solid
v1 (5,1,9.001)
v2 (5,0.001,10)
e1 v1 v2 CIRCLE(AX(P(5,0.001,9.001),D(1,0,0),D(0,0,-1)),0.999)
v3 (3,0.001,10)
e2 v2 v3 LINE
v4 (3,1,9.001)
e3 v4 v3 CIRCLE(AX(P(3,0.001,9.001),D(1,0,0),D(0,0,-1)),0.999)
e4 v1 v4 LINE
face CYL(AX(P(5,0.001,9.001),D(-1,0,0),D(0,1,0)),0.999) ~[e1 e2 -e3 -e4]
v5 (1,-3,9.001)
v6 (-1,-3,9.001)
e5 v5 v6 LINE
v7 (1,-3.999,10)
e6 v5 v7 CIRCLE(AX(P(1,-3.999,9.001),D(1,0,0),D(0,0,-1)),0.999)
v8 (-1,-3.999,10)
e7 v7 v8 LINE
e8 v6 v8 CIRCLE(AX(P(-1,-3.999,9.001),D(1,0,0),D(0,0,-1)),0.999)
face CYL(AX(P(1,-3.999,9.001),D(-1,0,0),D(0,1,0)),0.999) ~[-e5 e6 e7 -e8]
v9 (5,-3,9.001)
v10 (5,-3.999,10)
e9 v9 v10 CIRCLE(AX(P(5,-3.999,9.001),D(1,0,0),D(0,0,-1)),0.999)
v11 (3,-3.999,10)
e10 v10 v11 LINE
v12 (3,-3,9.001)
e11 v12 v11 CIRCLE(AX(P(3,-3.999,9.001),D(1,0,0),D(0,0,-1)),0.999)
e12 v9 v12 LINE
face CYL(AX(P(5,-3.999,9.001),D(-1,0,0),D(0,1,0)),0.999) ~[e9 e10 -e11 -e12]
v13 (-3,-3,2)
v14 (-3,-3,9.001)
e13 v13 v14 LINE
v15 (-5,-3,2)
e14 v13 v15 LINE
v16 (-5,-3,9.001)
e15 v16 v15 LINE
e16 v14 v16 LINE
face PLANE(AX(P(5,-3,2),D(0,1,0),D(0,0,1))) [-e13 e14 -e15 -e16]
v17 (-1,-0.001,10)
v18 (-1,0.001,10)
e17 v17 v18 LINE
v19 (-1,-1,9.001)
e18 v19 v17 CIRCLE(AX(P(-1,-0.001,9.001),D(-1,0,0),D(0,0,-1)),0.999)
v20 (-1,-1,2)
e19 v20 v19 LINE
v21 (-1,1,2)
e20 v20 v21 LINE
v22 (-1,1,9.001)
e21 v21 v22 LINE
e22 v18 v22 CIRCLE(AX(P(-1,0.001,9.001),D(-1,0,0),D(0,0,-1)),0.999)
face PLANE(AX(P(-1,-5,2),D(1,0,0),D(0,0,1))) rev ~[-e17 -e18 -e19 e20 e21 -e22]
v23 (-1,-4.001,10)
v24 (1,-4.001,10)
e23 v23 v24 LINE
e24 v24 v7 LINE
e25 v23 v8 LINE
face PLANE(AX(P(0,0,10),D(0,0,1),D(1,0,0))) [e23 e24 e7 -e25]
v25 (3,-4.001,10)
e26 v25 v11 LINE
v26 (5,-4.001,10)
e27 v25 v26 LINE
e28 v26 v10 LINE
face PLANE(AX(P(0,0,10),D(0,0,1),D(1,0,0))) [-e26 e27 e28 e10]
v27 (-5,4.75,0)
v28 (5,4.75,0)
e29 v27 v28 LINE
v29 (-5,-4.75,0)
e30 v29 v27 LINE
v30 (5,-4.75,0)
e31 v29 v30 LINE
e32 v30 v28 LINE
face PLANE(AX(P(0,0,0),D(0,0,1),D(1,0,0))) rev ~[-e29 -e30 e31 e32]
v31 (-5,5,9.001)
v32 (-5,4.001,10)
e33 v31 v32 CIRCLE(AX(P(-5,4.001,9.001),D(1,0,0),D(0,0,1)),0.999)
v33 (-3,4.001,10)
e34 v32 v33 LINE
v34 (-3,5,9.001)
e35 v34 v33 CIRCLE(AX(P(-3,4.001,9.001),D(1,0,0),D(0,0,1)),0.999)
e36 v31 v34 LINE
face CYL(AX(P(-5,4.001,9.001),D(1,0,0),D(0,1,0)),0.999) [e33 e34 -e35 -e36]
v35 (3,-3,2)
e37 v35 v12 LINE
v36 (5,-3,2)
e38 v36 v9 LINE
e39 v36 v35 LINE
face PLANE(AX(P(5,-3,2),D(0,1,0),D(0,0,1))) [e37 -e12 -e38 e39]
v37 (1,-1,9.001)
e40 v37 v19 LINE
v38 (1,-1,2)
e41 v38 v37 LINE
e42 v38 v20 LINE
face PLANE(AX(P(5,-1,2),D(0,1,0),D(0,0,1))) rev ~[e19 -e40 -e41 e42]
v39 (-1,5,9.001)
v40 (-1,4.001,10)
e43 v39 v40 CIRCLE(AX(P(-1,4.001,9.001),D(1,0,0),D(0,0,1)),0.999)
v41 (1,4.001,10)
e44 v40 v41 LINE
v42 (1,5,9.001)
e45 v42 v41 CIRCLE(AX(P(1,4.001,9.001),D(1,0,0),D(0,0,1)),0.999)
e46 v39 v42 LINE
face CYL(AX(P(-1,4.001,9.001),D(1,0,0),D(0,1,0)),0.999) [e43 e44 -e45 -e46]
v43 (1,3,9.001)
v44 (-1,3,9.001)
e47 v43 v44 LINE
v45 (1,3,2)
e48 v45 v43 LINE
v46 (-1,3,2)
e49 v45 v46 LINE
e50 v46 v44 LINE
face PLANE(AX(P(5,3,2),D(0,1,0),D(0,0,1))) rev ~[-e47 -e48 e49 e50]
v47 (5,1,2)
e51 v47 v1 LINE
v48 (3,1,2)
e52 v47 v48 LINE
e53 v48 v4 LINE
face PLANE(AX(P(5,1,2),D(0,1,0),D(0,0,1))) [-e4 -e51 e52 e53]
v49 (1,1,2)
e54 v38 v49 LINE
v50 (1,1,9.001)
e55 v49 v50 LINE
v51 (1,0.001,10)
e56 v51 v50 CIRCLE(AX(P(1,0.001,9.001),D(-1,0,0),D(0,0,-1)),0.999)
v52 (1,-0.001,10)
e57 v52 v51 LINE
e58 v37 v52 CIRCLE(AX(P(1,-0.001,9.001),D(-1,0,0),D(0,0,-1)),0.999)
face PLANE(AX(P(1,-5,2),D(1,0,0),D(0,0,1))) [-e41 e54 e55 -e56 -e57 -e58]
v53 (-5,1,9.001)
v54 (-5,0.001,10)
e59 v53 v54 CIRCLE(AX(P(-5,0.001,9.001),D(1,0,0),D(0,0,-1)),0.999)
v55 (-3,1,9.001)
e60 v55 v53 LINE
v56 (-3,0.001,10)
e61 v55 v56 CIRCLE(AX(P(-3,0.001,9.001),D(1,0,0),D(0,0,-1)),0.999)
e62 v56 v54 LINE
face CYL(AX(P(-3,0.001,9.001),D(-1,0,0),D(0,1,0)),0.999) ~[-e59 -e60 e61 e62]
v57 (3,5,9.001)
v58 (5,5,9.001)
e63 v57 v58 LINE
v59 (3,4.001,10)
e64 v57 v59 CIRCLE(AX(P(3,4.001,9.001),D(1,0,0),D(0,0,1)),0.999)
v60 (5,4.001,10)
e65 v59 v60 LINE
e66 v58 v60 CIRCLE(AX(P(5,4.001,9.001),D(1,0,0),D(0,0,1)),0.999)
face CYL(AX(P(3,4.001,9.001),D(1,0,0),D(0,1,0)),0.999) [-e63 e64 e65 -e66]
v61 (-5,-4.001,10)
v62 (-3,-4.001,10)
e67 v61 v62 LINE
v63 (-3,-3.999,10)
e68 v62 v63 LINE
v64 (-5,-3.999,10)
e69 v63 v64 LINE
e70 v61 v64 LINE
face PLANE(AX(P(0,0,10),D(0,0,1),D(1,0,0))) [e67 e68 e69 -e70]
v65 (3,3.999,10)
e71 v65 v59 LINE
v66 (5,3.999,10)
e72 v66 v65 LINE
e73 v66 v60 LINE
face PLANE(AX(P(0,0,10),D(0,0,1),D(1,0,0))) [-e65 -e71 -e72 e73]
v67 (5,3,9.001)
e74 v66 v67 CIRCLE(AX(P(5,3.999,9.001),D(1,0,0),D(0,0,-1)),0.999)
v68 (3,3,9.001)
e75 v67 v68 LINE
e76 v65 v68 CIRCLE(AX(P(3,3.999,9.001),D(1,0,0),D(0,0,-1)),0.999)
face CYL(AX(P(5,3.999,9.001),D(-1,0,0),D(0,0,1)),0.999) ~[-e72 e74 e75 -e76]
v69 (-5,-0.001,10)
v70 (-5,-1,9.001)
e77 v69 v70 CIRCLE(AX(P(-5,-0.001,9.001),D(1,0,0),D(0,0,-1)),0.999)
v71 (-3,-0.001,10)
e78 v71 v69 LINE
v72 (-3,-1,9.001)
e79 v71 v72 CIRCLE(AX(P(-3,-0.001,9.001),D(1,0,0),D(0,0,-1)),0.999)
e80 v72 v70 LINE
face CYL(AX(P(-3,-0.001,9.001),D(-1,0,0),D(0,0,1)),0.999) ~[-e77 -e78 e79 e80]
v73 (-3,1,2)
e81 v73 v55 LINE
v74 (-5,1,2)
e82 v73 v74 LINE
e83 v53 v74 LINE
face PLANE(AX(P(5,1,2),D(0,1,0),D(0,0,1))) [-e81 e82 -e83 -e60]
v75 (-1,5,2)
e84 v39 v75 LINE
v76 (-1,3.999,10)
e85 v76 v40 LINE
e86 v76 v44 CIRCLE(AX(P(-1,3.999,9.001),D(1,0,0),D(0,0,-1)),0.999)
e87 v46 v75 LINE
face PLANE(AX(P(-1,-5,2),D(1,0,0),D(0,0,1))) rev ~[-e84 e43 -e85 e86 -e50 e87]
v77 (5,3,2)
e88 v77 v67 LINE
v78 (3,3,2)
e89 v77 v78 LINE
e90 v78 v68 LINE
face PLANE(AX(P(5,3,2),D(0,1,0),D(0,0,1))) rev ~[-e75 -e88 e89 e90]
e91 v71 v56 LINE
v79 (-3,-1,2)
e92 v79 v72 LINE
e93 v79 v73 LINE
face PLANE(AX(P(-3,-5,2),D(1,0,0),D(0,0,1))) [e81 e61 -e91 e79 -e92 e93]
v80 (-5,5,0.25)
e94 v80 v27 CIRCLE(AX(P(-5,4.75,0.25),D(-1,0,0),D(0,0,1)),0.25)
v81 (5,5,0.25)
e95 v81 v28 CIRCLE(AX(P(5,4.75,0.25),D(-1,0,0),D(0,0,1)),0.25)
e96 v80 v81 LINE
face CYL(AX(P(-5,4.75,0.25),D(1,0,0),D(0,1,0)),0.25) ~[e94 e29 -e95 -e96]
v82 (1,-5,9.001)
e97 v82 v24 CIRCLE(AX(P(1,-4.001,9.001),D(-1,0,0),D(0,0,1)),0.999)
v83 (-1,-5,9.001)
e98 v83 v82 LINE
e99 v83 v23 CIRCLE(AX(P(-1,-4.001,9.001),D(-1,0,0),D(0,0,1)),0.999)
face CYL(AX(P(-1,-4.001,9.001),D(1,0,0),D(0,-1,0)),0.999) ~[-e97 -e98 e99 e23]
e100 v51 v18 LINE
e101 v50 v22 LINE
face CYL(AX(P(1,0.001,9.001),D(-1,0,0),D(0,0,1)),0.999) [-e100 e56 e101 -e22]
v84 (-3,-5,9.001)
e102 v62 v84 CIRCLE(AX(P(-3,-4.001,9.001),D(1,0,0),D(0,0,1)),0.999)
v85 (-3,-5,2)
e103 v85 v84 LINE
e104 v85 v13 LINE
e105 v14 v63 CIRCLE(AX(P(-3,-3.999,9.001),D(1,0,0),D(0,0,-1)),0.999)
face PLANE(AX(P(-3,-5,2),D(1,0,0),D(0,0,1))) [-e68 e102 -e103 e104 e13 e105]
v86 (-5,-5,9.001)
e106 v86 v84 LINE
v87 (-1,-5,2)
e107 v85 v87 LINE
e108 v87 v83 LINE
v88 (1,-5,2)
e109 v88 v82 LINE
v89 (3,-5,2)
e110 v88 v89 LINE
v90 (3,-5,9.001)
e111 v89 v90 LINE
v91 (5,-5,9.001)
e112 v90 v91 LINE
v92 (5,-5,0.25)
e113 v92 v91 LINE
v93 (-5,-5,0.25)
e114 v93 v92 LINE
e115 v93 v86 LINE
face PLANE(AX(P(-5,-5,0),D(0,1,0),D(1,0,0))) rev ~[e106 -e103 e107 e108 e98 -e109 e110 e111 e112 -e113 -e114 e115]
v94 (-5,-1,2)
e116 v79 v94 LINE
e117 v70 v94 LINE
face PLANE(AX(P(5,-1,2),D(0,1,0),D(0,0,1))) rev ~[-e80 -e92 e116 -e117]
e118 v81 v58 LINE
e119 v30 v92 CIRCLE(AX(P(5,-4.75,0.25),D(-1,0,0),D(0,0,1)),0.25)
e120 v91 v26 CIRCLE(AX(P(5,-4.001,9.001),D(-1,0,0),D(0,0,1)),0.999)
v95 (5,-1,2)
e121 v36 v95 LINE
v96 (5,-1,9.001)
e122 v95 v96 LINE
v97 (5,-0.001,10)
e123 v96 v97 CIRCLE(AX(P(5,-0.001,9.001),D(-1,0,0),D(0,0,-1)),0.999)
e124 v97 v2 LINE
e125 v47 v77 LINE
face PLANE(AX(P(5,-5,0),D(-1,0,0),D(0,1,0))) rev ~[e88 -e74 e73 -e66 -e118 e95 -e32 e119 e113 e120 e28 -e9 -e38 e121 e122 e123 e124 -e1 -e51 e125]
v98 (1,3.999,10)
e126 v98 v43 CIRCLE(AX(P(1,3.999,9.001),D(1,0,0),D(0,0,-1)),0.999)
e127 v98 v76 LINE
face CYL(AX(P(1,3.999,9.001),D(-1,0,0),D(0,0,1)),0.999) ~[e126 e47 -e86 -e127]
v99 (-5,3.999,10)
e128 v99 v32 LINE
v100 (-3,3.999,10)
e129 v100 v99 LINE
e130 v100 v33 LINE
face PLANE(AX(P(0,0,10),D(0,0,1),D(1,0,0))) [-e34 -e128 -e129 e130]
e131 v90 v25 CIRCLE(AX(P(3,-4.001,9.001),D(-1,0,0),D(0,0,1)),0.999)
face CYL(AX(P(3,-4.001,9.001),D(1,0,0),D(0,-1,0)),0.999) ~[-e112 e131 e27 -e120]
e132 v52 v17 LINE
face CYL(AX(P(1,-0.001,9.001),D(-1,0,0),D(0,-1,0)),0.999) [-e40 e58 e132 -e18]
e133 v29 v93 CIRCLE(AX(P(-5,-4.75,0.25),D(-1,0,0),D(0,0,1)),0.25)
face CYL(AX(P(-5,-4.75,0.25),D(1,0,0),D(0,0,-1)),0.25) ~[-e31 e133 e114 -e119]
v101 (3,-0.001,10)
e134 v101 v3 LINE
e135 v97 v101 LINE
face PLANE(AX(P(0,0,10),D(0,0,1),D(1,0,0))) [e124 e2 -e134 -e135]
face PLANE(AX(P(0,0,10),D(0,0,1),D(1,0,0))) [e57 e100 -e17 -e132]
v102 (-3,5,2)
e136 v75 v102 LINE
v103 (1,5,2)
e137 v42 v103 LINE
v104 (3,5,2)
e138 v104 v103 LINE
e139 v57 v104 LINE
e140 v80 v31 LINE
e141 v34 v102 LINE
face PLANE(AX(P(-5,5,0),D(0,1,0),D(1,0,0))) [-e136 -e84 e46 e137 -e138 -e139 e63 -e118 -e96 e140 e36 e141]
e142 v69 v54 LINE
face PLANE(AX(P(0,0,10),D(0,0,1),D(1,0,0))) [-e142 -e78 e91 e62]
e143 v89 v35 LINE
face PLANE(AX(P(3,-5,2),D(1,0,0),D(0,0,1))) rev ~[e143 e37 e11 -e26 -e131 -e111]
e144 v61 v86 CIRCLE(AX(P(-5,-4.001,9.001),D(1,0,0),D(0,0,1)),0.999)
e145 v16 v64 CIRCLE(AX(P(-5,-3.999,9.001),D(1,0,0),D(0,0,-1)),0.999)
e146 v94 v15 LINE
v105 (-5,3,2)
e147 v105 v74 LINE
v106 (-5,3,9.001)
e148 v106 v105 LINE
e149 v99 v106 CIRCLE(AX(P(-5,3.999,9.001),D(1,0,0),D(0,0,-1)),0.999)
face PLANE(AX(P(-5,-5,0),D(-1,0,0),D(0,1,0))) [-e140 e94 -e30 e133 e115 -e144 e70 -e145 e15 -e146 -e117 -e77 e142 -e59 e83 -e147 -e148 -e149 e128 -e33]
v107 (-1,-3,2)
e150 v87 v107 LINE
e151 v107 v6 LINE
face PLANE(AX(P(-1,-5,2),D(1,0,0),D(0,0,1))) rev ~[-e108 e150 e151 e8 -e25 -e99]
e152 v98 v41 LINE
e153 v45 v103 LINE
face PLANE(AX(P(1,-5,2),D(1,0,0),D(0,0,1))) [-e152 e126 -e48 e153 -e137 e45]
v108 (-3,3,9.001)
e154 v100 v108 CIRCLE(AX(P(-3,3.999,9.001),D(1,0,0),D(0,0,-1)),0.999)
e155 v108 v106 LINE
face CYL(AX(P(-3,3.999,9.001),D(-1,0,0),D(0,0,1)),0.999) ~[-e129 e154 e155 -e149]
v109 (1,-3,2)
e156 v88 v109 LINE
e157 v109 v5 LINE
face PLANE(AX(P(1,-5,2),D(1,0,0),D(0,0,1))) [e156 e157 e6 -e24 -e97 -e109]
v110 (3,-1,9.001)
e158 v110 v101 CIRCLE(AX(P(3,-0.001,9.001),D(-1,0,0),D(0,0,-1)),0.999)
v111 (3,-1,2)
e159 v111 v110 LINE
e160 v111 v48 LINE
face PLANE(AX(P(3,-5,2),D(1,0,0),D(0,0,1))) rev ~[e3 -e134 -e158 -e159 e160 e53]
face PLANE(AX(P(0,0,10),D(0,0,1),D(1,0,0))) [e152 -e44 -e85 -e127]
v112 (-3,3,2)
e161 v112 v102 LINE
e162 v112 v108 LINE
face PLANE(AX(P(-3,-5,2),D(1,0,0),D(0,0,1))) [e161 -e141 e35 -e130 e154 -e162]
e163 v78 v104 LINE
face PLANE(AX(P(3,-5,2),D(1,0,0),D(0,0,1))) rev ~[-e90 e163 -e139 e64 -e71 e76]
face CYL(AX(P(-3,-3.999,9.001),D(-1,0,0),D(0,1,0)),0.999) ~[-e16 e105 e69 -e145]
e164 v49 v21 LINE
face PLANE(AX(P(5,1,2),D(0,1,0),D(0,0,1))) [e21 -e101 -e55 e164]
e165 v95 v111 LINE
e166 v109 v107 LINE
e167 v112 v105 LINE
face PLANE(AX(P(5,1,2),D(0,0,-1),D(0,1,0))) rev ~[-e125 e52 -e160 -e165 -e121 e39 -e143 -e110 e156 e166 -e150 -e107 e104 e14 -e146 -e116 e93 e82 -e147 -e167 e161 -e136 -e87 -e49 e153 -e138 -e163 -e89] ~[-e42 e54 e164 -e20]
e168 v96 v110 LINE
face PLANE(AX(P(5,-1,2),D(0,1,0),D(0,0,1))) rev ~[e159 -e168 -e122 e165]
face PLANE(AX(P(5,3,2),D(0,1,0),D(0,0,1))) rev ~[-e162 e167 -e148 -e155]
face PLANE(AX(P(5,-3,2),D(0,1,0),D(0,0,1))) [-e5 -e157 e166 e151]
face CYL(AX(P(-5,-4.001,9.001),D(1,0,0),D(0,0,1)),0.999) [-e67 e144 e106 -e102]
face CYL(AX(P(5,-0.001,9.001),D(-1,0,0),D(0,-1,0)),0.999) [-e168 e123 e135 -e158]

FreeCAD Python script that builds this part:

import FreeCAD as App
import Part
import Sketcher
from FreeCAD import Vector
Q = App.Units.Quantity


def edges_at(feature, points):
    """Names of the edges that pass closest to the given points."""
    edges = feature.Shape.Edges
    near = lambda p: min(range(len(edges)), key=lambda i: edges[i].distToShape(Part.Vertex(*p))[0])
    return sorted({f"Edge{near(p) + 1}" for p in points})


def add_polygon(sketch, points):
    """Adds a closed chain of lines whose ends are joined by coincident constraints."""
    first, n = sketch.GeometryCount, len(points)
    for a, b in zip(points, points[1:] + points[:1]):
        sketch.addGeometry(Part.LineSegment(App.Vector(*a, 0), App.Vector(*b, 0)), False)
    for i in range(n):
        sketch.addConstraint(Sketcher.Constraint("Coincident", first + i, 2, first + (i + 1) % n, 1))

doc = App.newDocument("Part")
params = doc.addObject("Spreadsheet::Sheet", "Params")
for row, (alias, value) in enumerate([
    ("sketch1_width", "10 mm"),
    ("pad1_length", "10 mm"),
    ("sketch2_width", "2 mm"),
    ("sketch2_height", "10 mm"),
    ("linearpattern_pitch", "4 mm"),
    ("sketch3_width", "2 mm"),
    ("sketch3_height", "10 mm"),
    ("linearpattern2_pitch", "4 mm"),
    ("fillet_radius", "0.999 mm"),
    ("fillet2_radius", "0.25 mm"),
], start=1):
    params.set(f"A{row}", alias)
    params.set(f"B{row}", "=" + value)
    params.setAlias(f"B{row}", alias)

body = doc.addObject("PartDesign::Body", "Body")

sketch1 = doc.addObject("Sketcher::SketchObject", "Sketch")
body.addObject(sketch1)
sketch1.AttachmentSupport = (doc.XY_Plane, [""])
sketch1.MapMode = "FlatFace"
add_polygon(sketch1, [(-5, 5), (-5, -5), (5, -5), (5, 5)])
sketch1.addConstraint(Sketcher.Constraint("Vertical", 0))
sketch1.addConstraint(Sketcher.Constraint("Horizontal", 1))
sketch1.addConstraint(Sketcher.Constraint("Vertical", 2))
sketch1.addConstraint(Sketcher.Constraint("Horizontal", 3))
sketch1.addConstraint(Sketcher.Constraint("Symmetric", 0, 2, 2, 2, -1, 1))
sketch1.addConstraint(Sketcher.Constraint("Equal", 3, 0))
sketch1.addConstraint(Sketcher.Constraint("DistanceX", 1, 1, 1, 2, Q("10 mm")))
sketch1.setExpression("Constraints[10]", "Params.sketch1_width")
pad1 = doc.addObject("PartDesign::Pad", "Pad")
body.addObject(pad1)
pad1.Profile = sketch1
pad1.setExpression("Length", "Params.pad1_length")

sketch2 = doc.addObject("Sketcher::SketchObject", "Sketch001")
body.addObject(sketch2)
sketch2.AttachmentSupport = (doc.XZ_Plane, [""])
sketch2.MapMode = "FlatFace"
sketch2.AttachmentOffset = App.Placement(Vector(0, 0, 5), App.Rotation())
add_polygon(sketch2, [(-3, 12), (-3, 2), (-1, 2), (-1, 12)])
sketch2.addConstraint(Sketcher.Constraint("Vertical", 0))
sketch2.addConstraint(Sketcher.Constraint("Horizontal", 1))
sketch2.addConstraint(Sketcher.Constraint("Vertical", 2))
sketch2.addConstraint(Sketcher.Constraint("Horizontal", 3))
sketch2.addConstraint(Sketcher.Constraint("DistanceX", 1, 1, 1, 2, Q("2 mm")))
sketch2.addConstraint(Sketcher.Constraint("DistanceY", 0, 2, 0, 1, Q("10 mm")))
sketch2.addConstraint(Sketcher.Constraint("DistanceX", 0, 2, -1, 1, Q("3 mm")))
sketch2.addConstraint(Sketcher.Constraint("DistanceY", -1, 1, 0, 2, Q("2 mm")))
sketch2.setExpression("Constraints[8]", "Params.sketch2_width")
sketch2.setExpression("Constraints[9]", "Params.sketch2_height")
pocket1 = doc.addObject("PartDesign::Pocket", "Pocket")
body.addObject(pocket1)
pocket1.Profile = sketch2
pocket1.Type = "ThroughAll"
doc.recompute()

linearpattern = doc.addObject("PartDesign::LinearPattern", "LinearPattern")
body.addObject(linearpattern)
linearpattern.Originals = [pocket1]
linearpattern.Direction = (doc.X_Axis, [""])
linearpattern.Mode = "offset"
linearpattern.setExpression("Offset", "Params.linearpattern_pitch")
linearpattern.Occurrences = 2
body.Tip = linearpattern

sketch3 = doc.addObject("Sketcher::SketchObject", "Sketch002")
body.addObject(sketch3)
sketch3.AttachmentSupport = (doc.YZ_Plane, [""])
sketch3.MapMode = "FlatFace"
sketch3.AttachmentOffset = App.Placement(Vector(0, 0, 5), App.Rotation())
add_polygon(sketch3, [(-3, 12), (-3, 2), (-1, 2), (-1, 12)])
sketch3.addConstraint(Sketcher.Constraint("Vertical", 0))
sketch3.addConstraint(Sketcher.Constraint("Horizontal", 1))
sketch3.addConstraint(Sketcher.Constraint("Vertical", 2))
sketch3.addConstraint(Sketcher.Constraint("Horizontal", 3))
sketch3.addConstraint(Sketcher.Constraint("DistanceX", 1, 1, 1, 2, Q("2 mm")))
sketch3.addConstraint(Sketcher.Constraint("DistanceY", 0, 2, 0, 1, Q("10 mm")))
sketch3.addConstraint(Sketcher.Constraint("DistanceX", 0, 2, -1, 1, Q("3 mm")))
sketch3.addConstraint(Sketcher.Constraint("DistanceY", -1, 1, 0, 2, Q("2 mm")))
sketch3.setExpression("Constraints[8]", "Params.sketch3_width")
sketch3.setExpression("Constraints[9]", "Params.sketch3_height")
pocket2 = doc.addObject("PartDesign::Pocket", "Pocket001")
body.addObject(pocket2)
pocket2.Profile = sketch3
pocket2.Type = "ThroughAll"
doc.recompute()

linearpattern2 = doc.addObject("PartDesign::LinearPattern", "LinearPattern001")
body.addObject(linearpattern2)
linearpattern2.Originals = [pocket2]
linearpattern2.Direction = (doc.Y_Axis, [""])
linearpattern2.Mode = "offset"
linearpattern2.setExpression("Offset", "Params.linearpattern2_pitch")
linearpattern2.Occurrences = 2
body.Tip = linearpattern2
doc.recompute()

fillet = doc.addObject("PartDesign::Fillet", "Fillet")
body.addObject(fillet)
fillet.Base = (linearpattern2, edges_at(linearpattern2, [
    (-4, -5, 10),
    (-4, -3, 10),
    (0, -5, 10),
    (0, -3, 10),
    (4, -5, 10),
    (4, -3, 10),
    (4, -1, 10),
    (4, 1, 10),
    (0, 1, 10),
    (0, -1, 10),
    (-4, -1, 10),
    (-4, 1, 10),
    (-4, 3, 10),
    (-4, 5, 10),
    (0, 5, 10),
    (0, 3, 10),
    (4, 5, 10),
    (4, 3, 10),
]))
fillet.setExpression("Radius", "Params.fillet_radius")
doc.recompute()

fillet2 = doc.addObject("PartDesign::Fillet", "Fillet001")
body.addObject(fillet2)
fillet2.Base = (fillet, edges_at(fillet, [(0, -5, 0), (0, 5, 0)]))
fillet2.setExpression("Radius", "Params.fillet2_radius")

doc.recompute()
